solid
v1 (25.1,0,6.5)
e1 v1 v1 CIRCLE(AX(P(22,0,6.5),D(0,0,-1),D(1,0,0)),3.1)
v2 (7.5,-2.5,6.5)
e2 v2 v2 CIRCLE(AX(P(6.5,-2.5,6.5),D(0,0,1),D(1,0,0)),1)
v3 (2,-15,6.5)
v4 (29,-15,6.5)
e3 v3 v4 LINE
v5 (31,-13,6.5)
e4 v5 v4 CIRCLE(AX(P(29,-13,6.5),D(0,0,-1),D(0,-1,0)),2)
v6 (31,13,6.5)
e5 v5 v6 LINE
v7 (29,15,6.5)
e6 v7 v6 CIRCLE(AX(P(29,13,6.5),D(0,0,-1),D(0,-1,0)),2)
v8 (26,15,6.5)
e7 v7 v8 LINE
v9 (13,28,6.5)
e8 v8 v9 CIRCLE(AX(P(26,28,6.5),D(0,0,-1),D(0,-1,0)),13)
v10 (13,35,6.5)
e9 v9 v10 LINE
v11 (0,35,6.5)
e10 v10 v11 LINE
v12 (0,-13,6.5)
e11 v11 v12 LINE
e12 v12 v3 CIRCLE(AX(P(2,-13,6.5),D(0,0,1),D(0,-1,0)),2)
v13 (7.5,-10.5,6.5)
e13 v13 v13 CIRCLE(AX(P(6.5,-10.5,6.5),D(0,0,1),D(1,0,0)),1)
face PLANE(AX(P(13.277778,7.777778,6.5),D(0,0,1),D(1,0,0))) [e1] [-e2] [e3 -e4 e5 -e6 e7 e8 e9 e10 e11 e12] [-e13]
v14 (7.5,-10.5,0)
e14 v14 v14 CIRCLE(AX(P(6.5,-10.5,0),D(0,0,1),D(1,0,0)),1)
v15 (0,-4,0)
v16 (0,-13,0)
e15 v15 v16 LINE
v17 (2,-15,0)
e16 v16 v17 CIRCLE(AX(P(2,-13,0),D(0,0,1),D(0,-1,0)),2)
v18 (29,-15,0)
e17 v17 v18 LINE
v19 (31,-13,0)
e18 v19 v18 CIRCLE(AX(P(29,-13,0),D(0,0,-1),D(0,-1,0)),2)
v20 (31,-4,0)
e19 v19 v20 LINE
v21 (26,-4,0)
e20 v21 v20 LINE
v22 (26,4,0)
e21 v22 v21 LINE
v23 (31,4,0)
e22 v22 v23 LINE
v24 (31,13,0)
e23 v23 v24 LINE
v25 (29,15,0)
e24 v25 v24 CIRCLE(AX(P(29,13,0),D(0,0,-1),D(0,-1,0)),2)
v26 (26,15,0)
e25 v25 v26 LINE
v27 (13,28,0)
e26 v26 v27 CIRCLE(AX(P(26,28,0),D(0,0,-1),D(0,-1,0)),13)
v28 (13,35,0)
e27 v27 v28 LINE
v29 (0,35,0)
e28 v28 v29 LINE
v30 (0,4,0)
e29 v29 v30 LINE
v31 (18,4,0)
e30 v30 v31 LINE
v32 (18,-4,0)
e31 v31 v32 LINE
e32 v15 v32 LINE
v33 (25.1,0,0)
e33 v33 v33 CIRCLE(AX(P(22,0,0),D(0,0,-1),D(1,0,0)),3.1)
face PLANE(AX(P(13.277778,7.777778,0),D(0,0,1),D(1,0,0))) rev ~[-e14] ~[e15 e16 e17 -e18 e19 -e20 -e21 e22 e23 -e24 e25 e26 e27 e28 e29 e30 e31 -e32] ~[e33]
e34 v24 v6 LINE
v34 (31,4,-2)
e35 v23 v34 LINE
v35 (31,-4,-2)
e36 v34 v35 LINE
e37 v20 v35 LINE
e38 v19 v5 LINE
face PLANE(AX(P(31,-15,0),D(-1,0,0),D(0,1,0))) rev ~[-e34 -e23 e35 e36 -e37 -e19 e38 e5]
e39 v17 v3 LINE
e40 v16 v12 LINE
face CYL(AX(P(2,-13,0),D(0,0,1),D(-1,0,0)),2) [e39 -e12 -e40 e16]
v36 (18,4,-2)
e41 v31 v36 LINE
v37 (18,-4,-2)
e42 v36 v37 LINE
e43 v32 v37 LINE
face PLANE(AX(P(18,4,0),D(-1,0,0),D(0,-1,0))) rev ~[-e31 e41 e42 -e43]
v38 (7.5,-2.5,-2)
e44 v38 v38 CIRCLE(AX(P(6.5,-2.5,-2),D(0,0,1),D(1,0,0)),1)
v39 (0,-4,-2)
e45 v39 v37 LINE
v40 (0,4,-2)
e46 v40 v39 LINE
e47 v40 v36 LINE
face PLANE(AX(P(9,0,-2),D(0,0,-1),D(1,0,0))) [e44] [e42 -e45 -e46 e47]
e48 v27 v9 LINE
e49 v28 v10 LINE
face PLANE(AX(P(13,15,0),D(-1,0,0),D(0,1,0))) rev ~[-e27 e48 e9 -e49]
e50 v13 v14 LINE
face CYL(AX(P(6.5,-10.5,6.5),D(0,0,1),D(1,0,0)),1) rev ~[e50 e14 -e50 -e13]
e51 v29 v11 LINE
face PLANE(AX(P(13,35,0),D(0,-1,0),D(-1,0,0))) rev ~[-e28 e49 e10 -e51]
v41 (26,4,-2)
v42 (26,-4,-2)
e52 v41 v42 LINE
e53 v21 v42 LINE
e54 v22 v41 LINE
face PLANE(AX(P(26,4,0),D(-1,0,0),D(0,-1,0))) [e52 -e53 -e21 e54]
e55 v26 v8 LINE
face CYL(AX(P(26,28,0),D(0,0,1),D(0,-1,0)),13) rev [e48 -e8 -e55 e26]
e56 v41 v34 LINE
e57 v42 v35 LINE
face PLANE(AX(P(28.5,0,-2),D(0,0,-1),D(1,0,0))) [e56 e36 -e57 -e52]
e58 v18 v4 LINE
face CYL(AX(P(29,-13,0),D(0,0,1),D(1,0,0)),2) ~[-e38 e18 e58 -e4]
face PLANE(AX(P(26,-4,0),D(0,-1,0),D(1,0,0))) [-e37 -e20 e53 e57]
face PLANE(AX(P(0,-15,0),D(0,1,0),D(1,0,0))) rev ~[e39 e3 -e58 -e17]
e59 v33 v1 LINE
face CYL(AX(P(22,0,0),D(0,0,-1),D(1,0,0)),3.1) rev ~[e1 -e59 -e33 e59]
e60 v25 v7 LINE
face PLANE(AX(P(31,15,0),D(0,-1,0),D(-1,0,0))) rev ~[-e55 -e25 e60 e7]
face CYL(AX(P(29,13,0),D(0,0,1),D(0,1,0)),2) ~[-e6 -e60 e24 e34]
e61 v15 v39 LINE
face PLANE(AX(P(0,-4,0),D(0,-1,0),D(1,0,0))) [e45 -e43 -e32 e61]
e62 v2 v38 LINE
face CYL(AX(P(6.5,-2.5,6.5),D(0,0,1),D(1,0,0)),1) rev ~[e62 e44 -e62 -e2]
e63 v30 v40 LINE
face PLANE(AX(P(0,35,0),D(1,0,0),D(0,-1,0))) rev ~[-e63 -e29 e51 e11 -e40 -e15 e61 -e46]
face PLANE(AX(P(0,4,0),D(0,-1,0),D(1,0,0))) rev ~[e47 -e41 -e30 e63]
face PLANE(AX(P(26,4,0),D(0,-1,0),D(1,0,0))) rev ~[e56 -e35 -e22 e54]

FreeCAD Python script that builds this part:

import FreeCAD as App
import Part
import Sketcher

V = App.Vector
Q = App.Units.Quantity


def edges_at(feature, points):
    """Names of the edges that pass closest to the given points."""
    edges = feature.Shape.Edges
    near = lambda p: min(range(len(edges)), key=lambda i: edges[i].distToShape(Part.Vertex(*p))[0])
    return sorted({f"Edge{near(p) + 1}" for p in points})

doc = App.newDocument("Part")
body = doc.addObject("PartDesign::Body", "Body")

sketch1 = doc.addObject("Sketcher::SketchObject", "Sketch")
body.addObject(sketch1)
sketch1.AttachmentSupport = (doc.XY_Plane, [""])
sketch1.MapMode = "FlatFace"
sketch1.addGeometry(Part.LineSegment(V(0, -15, 0), V(31, -15, 0)), False)
sketch1.addGeometry(Part.LineSegment(V(31, -15, 0), V(31, 15, 0)), False)
sketch1.addGeometry(Part.LineSegment(V(31, 15, 0), V(13, 15, 0)), False)
sketch1.addGeometry(Part.LineSegment(V(13, 15, 0), V(13, 35, 0)), False)
sketch1.addGeometry(Part.LineSegment(V(13, 35, 0), V(0, 35, 0)), False)
sketch1.addGeometry(Part.LineSegment(V(0, 35, 0), V(0, -15, 0)), False)
sketch1.addConstraint(Sketcher.Constraint("Coincident", 0, 2, 1, 1))
sketch1.addConstraint(Sketcher.Constraint("Coincident", 1, 2, 2, 1))
sketch1.addConstraint(Sketcher.Constraint("Coincident", 2, 2, 3, 1))
sketch1.addConstraint(Sketcher.Constraint("Coincident", 3, 2, 4, 1))
sketch1.addConstraint(Sketcher.Constraint("Coincident", 4, 2, 5, 1))
sketch1.addConstraint(Sketcher.Constraint("Coincident", 5, 2, 0, 1))
sketch1.addConstraint(Sketcher.Constraint("Horizontal", 0))
sketch1.addConstraint(Sketcher.Constraint("Vertical", 1))
sketch1.addConstraint(Sketcher.Constraint("Horizontal", 2))
sketch1.addConstraint(Sketcher.Constraint("Vertical", 3))
sketch1.addConstraint(Sketcher.Constraint("Horizontal", 4))
sketch1.addConstraint(Sketcher.Constraint("Vertical", 5))
sketch1.addConstraint(Sketcher.Constraint("PointOnObject", 4, 2, -2))
sketch1.addConstraint(Sketcher.Constraint("DistanceX", 0, 1, 0, 2, Q("31 mm")))
sketch1.addConstraint(Sketcher.Constraint("DistanceX", 2, 2, 2, 1, Q("18 mm")))
sketch1.addConstraint(Sketcher.Constraint("DistanceY", 1, 1, 1, 2, Q("30 mm")))
sketch1.addConstraint(Sketcher.Constraint("DistanceY", 3, 1, 3, 2, Q("20 mm")))
sketch1.addConstraint(Sketcher.Constraint("DistanceY", 0, 2, -1, 1, Q("15 mm")))
pad1 = doc.addObject("PartDesign::Pad", "Pad")
body.addObject(pad1)
pad1.Profile = sketch1
pad1.Length = 6.5

sketch2 = doc.addObject("Sketcher::SketchObject", "Sketch001")
body.addObject(sketch2)
sketch2.AttachmentSupport = (doc.XY_Plane, [""])
sketch2.MapMode = "FlatFace"
sketch2.addGeometry(Part.LineSegment(V(0, -4, 0), V(0, 4, 0)), False)
sketch2.addGeometry(Part.LineSegment(V(0, 4, 0), V(18, 4, 0)), False)
sketch2.addGeometry(Part.LineSegment(V(18, 4, 0), V(18, -4, 0)), False)
sketch2.addGeometry(Part.LineSegment(V(18, -4, 0), V(0, -4, 0)), False)
sketch2.addGeometry(Part.LineSegment(V(26, -4, 0), V(26, 4, 0)), False)
sketch2.addGeometry(Part.LineSegment(V(26, 4, 0), V(31, 4, 0)), False)
sketch2.addGeometry(Part.LineSegment(V(31, 4, 0), V(31, -4, 0)), False)
sketch2.addGeometry(Part.LineSegment(V(31, -4, 0), V(26, -4, 0)), False)
sketch2.addConstraint(Sketcher.Constraint("Coincident", 0, 2, 1, 1))
sketch2.addConstraint(Sketcher.Constraint("Coincident", 1, 2, 2, 1))
sketch2.addConstraint(Sketcher.Constraint("Coincident", 2, 2, 3, 1))
sketch2.addConstraint(Sketcher.Constraint("Coincident", 3, 2, 0, 1))
sketch2.addConstraint(Sketcher.Constraint("Coincident", 4, 2, 5, 1))
sketch2.addConstraint(Sketcher.Constraint("Coincident", 5, 2, 6, 1))
sketch2.addConstraint(Sketcher.Constraint("Coincident", 6, 2, 7, 1))
sketch2.addConstraint(Sketcher.Constraint("Coincident", 7, 2, 4, 1))
sketch2.addConstraint(Sketcher.Constraint("Vertical", 0))
sketch2.addConstraint(Sketcher.Constraint("Horizontal", 1))
sketch2.addConstraint(Sketcher.Constraint("Vertical", 2))
sketch2.addConstraint(Sketcher.Constraint("Horizontal", 3))
sketch2.addConstraint(Sketcher.Constraint("Vertical", 4))
sketch2.addConstraint(Sketcher.Constraint("Horizontal", 5))
sketch2.addConstraint(Sketcher.Constraint("Vertical", 6))
sketch2.addConstraint(Sketcher.Constraint("Horizontal", 7))
sketch2.addConstraint(Sketcher.Constraint("Symmetric", 0, 2, 3, 2, -1, 1))
sketch2.addConstraint(Sketcher.Constraint("Horizontal", 1, 2, 4, 2))
sketch2.addConstraint(Sketcher.Constraint("Horizontal", 3, 2, 6, 2))
sketch2.addConstraint(Sketcher.Constraint("DistanceX", 1, 1, 1, 2, Q("18 mm")))
sketch2.addConstraint(Sketcher.Constraint("DistanceX", 5, 1, 5, 2, Q("5 mm")))
sketch2.addConstraint(Sketcher.Constraint("DistanceY", 0, 1, 0, 2, Q("8 mm")))
sketch2.addConstraint(Sketcher.Constraint("DistanceX", -1, 1, 4, 2, Q("26 mm")))
pad2 = doc.addObject("PartDesign::Pad", "Pad001")
body.addObject(pad2)
pad2.Profile = sketch2
pad2.Length = 2
pad2.Reversed = True

sketch3 = doc.addObject("Sketcher::SketchObject", "Sketch002")
body.addObject(sketch3)
sketch3.AttachmentSupport = (doc.XY_Plane, [""])
sketch3.MapMode = "FlatFace"
sketch3.addGeometry(Part.Circle(V(22, 0, 0), V(0, 0, 1), 3.1), False)
sketch3.addConstraint(Sketcher.Constraint("PointOnObject", 0, 3, -1))
sketch3.addConstraint(Sketcher.Constraint("Diameter", 0, Q("6.2 mm")))
sketch3.addConstraint(Sketcher.Constraint("DistanceX", -1, 1, 0, 3, Q("22 mm")))
pocket1 = doc.addObject("PartDesign::Pocket", "Pocket")
body.addObject(pocket1)
pocket1.Profile = sketch3
pocket1.Type = "ThroughAll"
pocket1.Reversed = True

sketch4 = doc.addObject("Sketcher::SketchObject", "Sketch003")
body.addObject(sketch4)
sketch4.AttachmentSupport = (doc.XY_Plane, [""])
sketch4.MapMode = "FlatFace"
sketch4.AttachmentOffset = App.Placement(V(0, 0, 6.5), App.Rotation())
sketch4.addGeometry(Part.Circle(V(6.5, -10.5, 0), V(0, 0, 1), 1), False)
sketch4.addGeometry(Part.Circle(V(6.5, -2.5, 0), V(0, 0, 1), 1), False)
sketch4.addConstraint(Sketcher.Constraint("Equal", 0, 1))
sketch4.addConstraint(Sketcher.Constraint("Vertical", 0, 3, 1, 3))
sketch4.addConstraint(Sketcher.Constraint("Diameter", 0, Q("2 mm")))
sketch4.addConstraint(Sketcher.Constraint("DistanceY", 0, 3, 1, 3, Q("8 mm")))
sketch4.addConstraint(Sketcher.Constraint("DistanceX", -1, 1, 0, 3, Q("6.5 mm")))
sketch4.addConstraint(Sketcher.Constraint("DistanceY", 0, 3, -1, 1, Q("10.5 mm")))
pocket2 = doc.addObject("PartDesign::Pocket", "Pocket001")
body.addObject(pocket2)
pocket2.Profile = sketch4
pocket2.Type = "ThroughAll"
doc.recompute()

fillet = doc.addObject("PartDesign::Fillet", "Fillet")
body.addObject(fillet)
fillet.Base = (pocket2, edges_at(pocket2, [(13, 15, 3.25)]))
fillet.Radius = 13
doc.recompute()

fillet2 = doc.addObject("PartDesign::Fillet", "Fillet001")
body.addObject(fillet2)
fillet2.Base = (fillet, edges_at(fillet, [(31, 15, 3.25), (31, -15, 3.25), (0, -15, 3.25)]))
fillet2.Radius = 2

doc.recompute()
